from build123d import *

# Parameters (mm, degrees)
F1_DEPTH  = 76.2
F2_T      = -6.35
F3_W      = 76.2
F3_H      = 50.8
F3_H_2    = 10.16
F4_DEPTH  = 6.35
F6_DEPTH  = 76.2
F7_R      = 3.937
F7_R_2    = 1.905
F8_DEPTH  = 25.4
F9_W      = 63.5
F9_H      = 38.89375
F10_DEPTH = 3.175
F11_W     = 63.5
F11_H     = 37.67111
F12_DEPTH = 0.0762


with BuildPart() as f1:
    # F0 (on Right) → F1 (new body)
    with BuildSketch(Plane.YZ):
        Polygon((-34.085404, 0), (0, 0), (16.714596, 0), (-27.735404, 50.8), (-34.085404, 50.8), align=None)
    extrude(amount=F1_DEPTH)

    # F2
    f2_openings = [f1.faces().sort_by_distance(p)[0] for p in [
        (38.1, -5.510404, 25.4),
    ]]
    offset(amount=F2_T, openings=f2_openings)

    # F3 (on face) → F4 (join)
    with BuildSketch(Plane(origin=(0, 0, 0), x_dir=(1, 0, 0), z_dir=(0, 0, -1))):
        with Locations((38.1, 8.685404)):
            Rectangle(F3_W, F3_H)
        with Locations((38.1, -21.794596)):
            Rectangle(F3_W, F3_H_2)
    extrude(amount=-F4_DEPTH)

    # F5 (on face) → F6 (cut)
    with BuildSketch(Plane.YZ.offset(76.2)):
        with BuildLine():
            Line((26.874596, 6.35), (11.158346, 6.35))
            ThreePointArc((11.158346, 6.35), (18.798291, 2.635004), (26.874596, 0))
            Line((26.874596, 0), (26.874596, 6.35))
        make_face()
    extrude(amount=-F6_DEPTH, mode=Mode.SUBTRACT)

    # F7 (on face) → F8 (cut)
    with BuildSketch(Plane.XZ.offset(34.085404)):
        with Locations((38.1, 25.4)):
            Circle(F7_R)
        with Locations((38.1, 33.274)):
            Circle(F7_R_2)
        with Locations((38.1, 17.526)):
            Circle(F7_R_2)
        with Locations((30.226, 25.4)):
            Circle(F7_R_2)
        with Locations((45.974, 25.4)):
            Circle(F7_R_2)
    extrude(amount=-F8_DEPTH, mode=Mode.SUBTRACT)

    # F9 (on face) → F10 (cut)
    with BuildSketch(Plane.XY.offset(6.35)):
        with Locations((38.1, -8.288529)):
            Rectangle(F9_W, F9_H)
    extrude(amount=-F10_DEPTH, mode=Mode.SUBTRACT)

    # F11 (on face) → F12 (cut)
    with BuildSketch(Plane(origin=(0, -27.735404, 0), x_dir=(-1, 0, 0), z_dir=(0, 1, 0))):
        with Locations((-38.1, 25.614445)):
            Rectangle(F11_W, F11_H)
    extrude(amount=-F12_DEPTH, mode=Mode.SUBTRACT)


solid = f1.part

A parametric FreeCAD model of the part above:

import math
import FreeCAD as App
import Part
import Sketcher
Q = App.Units.Quantity


def faces_at(feature, points):
    """Names of the faces that lie closest to the given points."""
    faces = feature.Shape.Faces
    near = lambda p: min(range(len(faces)), key=lambda i: faces[i].distToShape(Part.Vertex(*p))[0])
    return sorted({f"Face{near(p) + 1}" for p in points})

doc = App.newDocument("Part")
body = doc.addObject("PartDesign::Body", "Body")

# Sketch on YZ plane
sketch1 = doc.addObject("Sketcher::SketchObject", "Sketch")
body.addObject(sketch1)
sketch1.AttachmentSupport = (doc.YZ_Plane, [""])
sketch1.MapMode = "FlatFace"
sketch1.addGeometry(Part.LineSegment(App.Vector(-34, 0, 0), App.Vector(17, 0, 0)), False)
sketch1.addGeometry(Part.LineSegment(App.Vector(17, 0, 0), App.Vector(-28, 51, 0)), False)
sketch1.addGeometry(Part.LineSegment(App.Vector(-28, 51, 0), App.Vector(-34, 51, 0)), False)
sketch1.addGeometry(Part.LineSegment(App.Vector(-34, 51, 0), App.Vector(-34, 0, 0)), False)
sketch1.addConstraint(Sketcher.Constraint("Coincident", 0, 2, 1, 1))
sketch1.addConstraint(Sketcher.Constraint("Coincident", 1, 2, 2, 1))
sketch1.addConstraint(Sketcher.Constraint("Coincident", 2, 2, 3, 1))
sketch1.addConstraint(Sketcher.Constraint("Coincident", 3, 2, 0, 1))
sketch1.addConstraint(Sketcher.Constraint("Horizontal", 0))
sketch1.addConstraint(Sketcher.Constraint("Horizontal", 2))
sketch1.addConstraint(Sketcher.Constraint("Vertical", 3))
sketch1.addConstraint(Sketcher.Constraint("PointOnObject", 0, 2, -1))
sketch1.addConstraint(Sketcher.Constraint("Equal", 0, 3))
sketch1.addConstraint(Sketcher.Constraint("DistanceX", 0, 1, 0, 2, Q("2 in")))
sketch1.addConstraint(Sketcher.Constraint("DistanceX", 2, 2, 2, 1, Q("0.25 in")))
sketch1.addConstraint(Sketcher.Constraint("DistanceX", -1, 1, 0, 2, Q("16.714596 mm")))
pad1 = doc.addObject("PartDesign::Pad", "Pad")
body.addObject(pad1)
pad1.Profile = sketch1
pad1.Length = Q("3 in")
doc.recompute()

thickness = doc.addObject("PartDesign::Thickness", "Thickness")
body.addObject(thickness)
thickness.Base = (pad1, faces_at(pad1, [(38.1, -5.51, 25.4)]))
thickness.Value = Q("0.25 in")
thickness.Reversed = True
thickness.Join = "Arc"

# Sketch on XY plane
sketch2 = doc.addObject("Sketcher::SketchObject", "Sketch001")
body.addObject(sketch2)
sketch2.AttachmentSupport = (doc.XY_Plane, [""])
sketch2.MapMode = "FlatFace"
sketch2.addGeometry(Part.LineSegment(App.Vector(0, -34, 0), App.Vector(0, 27, 0)), False)
sketch2.addGeometry(Part.LineSegment(App.Vector(0, 27, 0), App.Vector(76, 27, 0)), False)
sketch2.addGeometry(Part.LineSegment(App.Vector(76, 27, 0), App.Vector(76, -34, 0)), False)
sketch2.addGeometry(Part.LineSegment(App.Vector(76, -34, 0), App.Vector(0, -34, 0)), False)
sketch2.addConstraint(Sketcher.Constraint("Coincident", 0, 2, 1, 1))
sketch2.addConstraint(Sketcher.Constraint("Coincident", 1, 2, 2, 1))
sketch2.addConstraint(Sketcher.Constraint("Coincident", 2, 2, 3, 1))
sketch2.addConstraint(Sketcher.Constraint("Coincident", 3, 2, 0, 1))
sketch2.addConstraint(Sketcher.Constraint("Vertical", 0))
sketch2.addConstraint(Sketcher.Constraint("Horizontal", 1))
sketch2.addConstraint(Sketcher.Constraint("Vertical", 2))
sketch2.addConstraint(Sketcher.Constraint("Horizontal", 3))
sketch2.addConstraint(Sketcher.Constraint("PointOnObject", 0, 2, -2))
sketch2.addConstraint(Sketcher.Constraint("DistanceX", 1, 1, 1, 2, Q("3 in")))
sketch2.addConstraint(Sketcher.Constraint("DistanceY", 0, 1, 0, 2, Q("2.4 in")))
sketch2.addConstraint(Sketcher.Constraint("DistanceY", -1, 1, 0, 2, Q("26.874596 mm")))
pad2 = doc.addObject("PartDesign::Pad", "Pad001")
body.addObject(pad2)
pad2.Profile = sketch2
pad2.Length = Q("0.25 in")

# Sketch on YZ plane
sketch3 = doc.addObject("Sketcher::SketchObject", "Sketch002")
body.addObject(sketch3)
sketch3.AttachmentSupport = (doc.YZ_Plane, [""])
sketch3.MapMode = "FlatFace"
sketch3.AttachmentOffset = App.Placement(App.Vector(0, 0, 3 * 25.4), App.Rotation())
sketch3.addGeometry(Part.LineSegment(App.Vector(27, 6, 0), App.Vector(11, 6, 0)), False)
sketch3.addGeometry(Part.ArcOfCircle(Part.Circle(App.Vector(42, 60, 0), App.Vector(0, 0, 1), 62), math.radians(-119.86), math.radians(-104.14)), False)
sketch3.addGeometry(Part.LineSegment(App.Vector(27, 0, 0), App.Vector(27, 6, 0)), False)
sketch3.addConstraint(Sketcher.Constraint("Coincident", 0, 2, 1, 1))
sketch3.addConstraint(Sketcher.Constraint("Coincident", 1, 2, 2, 1))
sketch3.addConstraint(Sketcher.Constraint("Coincident", 2, 2, 0, 1))
sketch3.addConstraint(Sketcher.Constraint("Horizontal", 0))
sketch3.addConstraint(Sketcher.Constraint("Vertical", 2))
sketch3.addConstraint(Sketcher.Constraint("PointOnObject", 1, 2, -1))
sketch3.addConstraint(Sketcher.Constraint("DistanceY", 2, 1, 2, 2, Q("0.25 in")))
sketch3.addConstraint(Sketcher.Constraint("Radius", 1, Q("61.958323 mm")))
sketch3.addConstraint(Sketcher.Constraint("DistanceX", 0, 2, 0, 1, Q("15.71625 mm")))
sketch3.addConstraint(Sketcher.Constraint("DistanceX", -1, 1, 1, 3, Q("42.008987 mm")))
pocket1 = doc.addObject("PartDesign::Pocket", "Pocket")
body.addObject(pocket1)
pocket1.Profile = sketch3
pocket1.Length = Q("3 in")

# Sketch on XZ plane
sketch4 = doc.addObject("Sketcher::SketchObject", "Sketch003")
body.addObject(sketch4)
sketch4.AttachmentSupport = (doc.XZ_Plane, [""])
sketch4.MapMode = "FlatFace"
sketch4.AttachmentOffset = App.Placement(App.Vector(0, 0, 34.085404), App.Rotation())
sketch4.addGeometry(Part.Circle(App.Vector(38.1, 25.4, 0), App.Vector(0, 0, 1), 3.9), False)
sketch4.addGeometry(Part.Circle(App.Vector(38.1, 33.3, 0), App.Vector(0, 0, 1), 1.9), False)
sketch4.addGeometry(Part.Circle(App.Vector(38.1, 17.5, 0), App.Vector(0, 0, 1), 1.9), False)
sketch4.addGeometry(Part.Circle(App.Vector(30.2, 25.4, 0), App.Vector(0, 0, 1), 1.9), False)
sketch4.addGeometry(Part.Circle(App.Vector(46, 25.4, 0), App.Vector(0, 0, 1), 1.9), False)
sketch4.addConstraint(Sketcher.Constraint("Equal", 1, 2))
sketch4.addConstraint(Sketcher.Constraint("Equal", 2, 3))
sketch4.addConstraint(Sketcher.Constraint("Equal", 3, 4))
sketch4.addConstraint(Sketcher.Constraint("Horizontal", 0, 3, 3, 3))
sketch4.addConstraint(Sketcher.Constraint("Horizontal", 3, 3, 4, 3))
sketch4.addConstraint(Sketcher.Constraint("Vertical", 0, 3, 1, 3))
sketch4.addConstraint(Sketcher.Constraint("Vertical", 1, 3, 2, 3))
sketch4.addConstraint(Sketcher.Constraint("Diameter", 0, Q("0.31 in")))
sketch4.addConstraint(Sketcher.Constraint("Diameter", 1, Q("0.15 in")))
sketch4.addConstraint(Sketcher.Constraint("DistanceY", -1, 1, 0, 3, Q("1 in")))
sketch4.addConstraint(Sketcher.Constraint("DistanceX", -1, 1, 0, 3, Q("1.5 in")))
sketch4.addConstraint(Sketcher.Constraint("DistanceY", -1, 1, 1, 3, Q("1.31 in")))
sketch4.addConstraint(Sketcher.Constraint("DistanceY", -1, 1, 2, 3, Q("0.69 in")))
sketch4.addConstraint(Sketcher.Constraint("DistanceX", -1, 1, 3, 3, Q("1.19 in")))
sketch4.addConstraint(Sketcher.Constraint("DistanceX", -1, 1, 4, 3, Q("1.81 in")))
pocket2 = doc.addObject("PartDesign::Pocket", "Pocket001")
body.addObject(pocket2)
pocket2.Profile = sketch4
pocket2.Length = Q("1 in")

# Sketch on XY plane
sketch5 = doc.addObject("Sketcher::SketchObject", "Sketch004")
body.addObject(sketch5)
sketch5.AttachmentSupport = (doc.XY_Plane, [""])
sketch5.MapMode = "FlatFace"
sketch5.AttachmentOffset = App.Placement(App.Vector(0, 0, 0.25 * 25.4), App.Rotation())
sketch5.addGeometry(Part.LineSegment(App.Vector(6, 11, 0), App.Vector(6, -28, 0)), False)
sketch5.addGeometry(Part.LineSegment(App.Vector(6, -28, 0), App.Vector(70, -28, 0)), False)
sketch5.addGeometry(Part.LineSegment(App.Vector(70, -28, 0), App.Vector(70, 11, 0)), False)
sketch5.addGeometry(Part.LineSegment(App.Vector(70, 11, 0), App.Vector(6, 11, 0)), False)
sketch5.addConstraint(Sketcher.Constraint("Coincident", 0, 2, 1, 1))
sketch5.addConstraint(Sketcher.Constraint("Coincident", 1, 2, 2, 1))
sketch5.addConstraint(Sketcher.Constraint("Coincident", 2, 2, 3, 1))
sketch5.addConstraint(Sketcher.Constraint("Coincident", 3, 2, 0, 1))
sketch5.addConstraint(Sketcher.Constraint("Vertical", 0))
sketch5.addConstraint(Sketcher.Constraint("Horizontal", 1))
sketch5.addConstraint(Sketcher.Constraint("Vertical", 2))
sketch5.addConstraint(Sketcher.Constraint("Horizontal", 3))
sketch5.addConstraint(Sketcher.Constraint("DistanceX", 1, 1, 1, 2, Q("2.5 in")))
sketch5.addConstraint(Sketcher.Constraint("DistanceY", 0, 2, 0, 1, Q("1.53125 in")))
sketch5.addConstraint(Sketcher.Constraint("DistanceX", -1, 1, 0, 2, Q("0.25 in")))
sketch5.addConstraint(Sketcher.Constraint("DistanceY", 0, 2, -1, 1, Q("27.735404 mm")))
pocket3 = doc.addObject("PartDesign::Pocket", "Pocket002")
body.addObject(pocket3)
pocket3.Profile = sketch5
pocket3.Length = Q("0.125 in")

# Sketch on XZ plane
sketch6 = doc.addObject("Sketcher::SketchObject", "Sketch005")
body.addObject(sketch6)
sketch6.AttachmentSupport = (doc.XZ_Plane, [""])
sketch6.MapMode = "FlatFace"
sketch6.AttachmentOffset = App.Placement(App.Vector(0, 0, 27.735404), App.Rotation())
sketch6.addGeometry(Part.LineSegment(App.Vector(70, 44, 0), App.Vector(70, 7, 0)), False)
sketch6.addGeometry(Part.LineSegment(App.Vector(70, 7, 0), App.Vector(6, 7, 0)), False)
sketch6.addGeometry(Part.LineSegment(App.Vector(6, 7, 0), App.Vector(6, 44, 0)), False)
sketch6.addGeometry(Part.LineSegment(App.Vector(6, 44, 0), App.Vector(70, 44, 0)), False)
sketch6.addConstraint(Sketcher.Constraint("Coincident", 0, 2, 1, 1))
sketch6.addConstraint(Sketcher.Constraint("Coincident", 1, 2, 2, 1))
sketch6.addConstraint(Sketcher.Constraint("Coincident", 2, 2, 3, 1))
sketch6.addConstraint(Sketcher.Constraint("Coincident", 3, 2, 0, 1))
sketch6.addConstraint(Sketcher.Constraint("Vertical", 0))
sketch6.addConstraint(Sketcher.Constraint("Horizontal", 1))
sketch6.addConstraint(Sketcher.Constraint("Vertical", 2))
sketch6.addConstraint(Sketcher.Constraint("Horizontal", 3))
sketch6.addConstraint(Sketcher.Constraint("DistanceX", 1, 2, 1, 1, Q("2.5 in")))
sketch6.addConstraint(Sketcher.Constraint("DistanceX", -1, 1, 0, 2, Q("2.75 in")))
sketch6.addConstraint(Sketcher.Constraint("DistanceY", -1, 1, 2, 2, Q("1.75 in")))
sketch6.addConstraint(Sketcher.Constraint("DistanceY", 0, 2, 0, 1, Q("37.67111 mm")))
pocket4 = doc.addObject("PartDesign::Pocket", "Pocket003")
body.addObject(pocket4)
pocket4.Profile = sketch6
pocket4.Length = Q("0.003 in")
pocket4.Reversed = True

doc.recompute()
